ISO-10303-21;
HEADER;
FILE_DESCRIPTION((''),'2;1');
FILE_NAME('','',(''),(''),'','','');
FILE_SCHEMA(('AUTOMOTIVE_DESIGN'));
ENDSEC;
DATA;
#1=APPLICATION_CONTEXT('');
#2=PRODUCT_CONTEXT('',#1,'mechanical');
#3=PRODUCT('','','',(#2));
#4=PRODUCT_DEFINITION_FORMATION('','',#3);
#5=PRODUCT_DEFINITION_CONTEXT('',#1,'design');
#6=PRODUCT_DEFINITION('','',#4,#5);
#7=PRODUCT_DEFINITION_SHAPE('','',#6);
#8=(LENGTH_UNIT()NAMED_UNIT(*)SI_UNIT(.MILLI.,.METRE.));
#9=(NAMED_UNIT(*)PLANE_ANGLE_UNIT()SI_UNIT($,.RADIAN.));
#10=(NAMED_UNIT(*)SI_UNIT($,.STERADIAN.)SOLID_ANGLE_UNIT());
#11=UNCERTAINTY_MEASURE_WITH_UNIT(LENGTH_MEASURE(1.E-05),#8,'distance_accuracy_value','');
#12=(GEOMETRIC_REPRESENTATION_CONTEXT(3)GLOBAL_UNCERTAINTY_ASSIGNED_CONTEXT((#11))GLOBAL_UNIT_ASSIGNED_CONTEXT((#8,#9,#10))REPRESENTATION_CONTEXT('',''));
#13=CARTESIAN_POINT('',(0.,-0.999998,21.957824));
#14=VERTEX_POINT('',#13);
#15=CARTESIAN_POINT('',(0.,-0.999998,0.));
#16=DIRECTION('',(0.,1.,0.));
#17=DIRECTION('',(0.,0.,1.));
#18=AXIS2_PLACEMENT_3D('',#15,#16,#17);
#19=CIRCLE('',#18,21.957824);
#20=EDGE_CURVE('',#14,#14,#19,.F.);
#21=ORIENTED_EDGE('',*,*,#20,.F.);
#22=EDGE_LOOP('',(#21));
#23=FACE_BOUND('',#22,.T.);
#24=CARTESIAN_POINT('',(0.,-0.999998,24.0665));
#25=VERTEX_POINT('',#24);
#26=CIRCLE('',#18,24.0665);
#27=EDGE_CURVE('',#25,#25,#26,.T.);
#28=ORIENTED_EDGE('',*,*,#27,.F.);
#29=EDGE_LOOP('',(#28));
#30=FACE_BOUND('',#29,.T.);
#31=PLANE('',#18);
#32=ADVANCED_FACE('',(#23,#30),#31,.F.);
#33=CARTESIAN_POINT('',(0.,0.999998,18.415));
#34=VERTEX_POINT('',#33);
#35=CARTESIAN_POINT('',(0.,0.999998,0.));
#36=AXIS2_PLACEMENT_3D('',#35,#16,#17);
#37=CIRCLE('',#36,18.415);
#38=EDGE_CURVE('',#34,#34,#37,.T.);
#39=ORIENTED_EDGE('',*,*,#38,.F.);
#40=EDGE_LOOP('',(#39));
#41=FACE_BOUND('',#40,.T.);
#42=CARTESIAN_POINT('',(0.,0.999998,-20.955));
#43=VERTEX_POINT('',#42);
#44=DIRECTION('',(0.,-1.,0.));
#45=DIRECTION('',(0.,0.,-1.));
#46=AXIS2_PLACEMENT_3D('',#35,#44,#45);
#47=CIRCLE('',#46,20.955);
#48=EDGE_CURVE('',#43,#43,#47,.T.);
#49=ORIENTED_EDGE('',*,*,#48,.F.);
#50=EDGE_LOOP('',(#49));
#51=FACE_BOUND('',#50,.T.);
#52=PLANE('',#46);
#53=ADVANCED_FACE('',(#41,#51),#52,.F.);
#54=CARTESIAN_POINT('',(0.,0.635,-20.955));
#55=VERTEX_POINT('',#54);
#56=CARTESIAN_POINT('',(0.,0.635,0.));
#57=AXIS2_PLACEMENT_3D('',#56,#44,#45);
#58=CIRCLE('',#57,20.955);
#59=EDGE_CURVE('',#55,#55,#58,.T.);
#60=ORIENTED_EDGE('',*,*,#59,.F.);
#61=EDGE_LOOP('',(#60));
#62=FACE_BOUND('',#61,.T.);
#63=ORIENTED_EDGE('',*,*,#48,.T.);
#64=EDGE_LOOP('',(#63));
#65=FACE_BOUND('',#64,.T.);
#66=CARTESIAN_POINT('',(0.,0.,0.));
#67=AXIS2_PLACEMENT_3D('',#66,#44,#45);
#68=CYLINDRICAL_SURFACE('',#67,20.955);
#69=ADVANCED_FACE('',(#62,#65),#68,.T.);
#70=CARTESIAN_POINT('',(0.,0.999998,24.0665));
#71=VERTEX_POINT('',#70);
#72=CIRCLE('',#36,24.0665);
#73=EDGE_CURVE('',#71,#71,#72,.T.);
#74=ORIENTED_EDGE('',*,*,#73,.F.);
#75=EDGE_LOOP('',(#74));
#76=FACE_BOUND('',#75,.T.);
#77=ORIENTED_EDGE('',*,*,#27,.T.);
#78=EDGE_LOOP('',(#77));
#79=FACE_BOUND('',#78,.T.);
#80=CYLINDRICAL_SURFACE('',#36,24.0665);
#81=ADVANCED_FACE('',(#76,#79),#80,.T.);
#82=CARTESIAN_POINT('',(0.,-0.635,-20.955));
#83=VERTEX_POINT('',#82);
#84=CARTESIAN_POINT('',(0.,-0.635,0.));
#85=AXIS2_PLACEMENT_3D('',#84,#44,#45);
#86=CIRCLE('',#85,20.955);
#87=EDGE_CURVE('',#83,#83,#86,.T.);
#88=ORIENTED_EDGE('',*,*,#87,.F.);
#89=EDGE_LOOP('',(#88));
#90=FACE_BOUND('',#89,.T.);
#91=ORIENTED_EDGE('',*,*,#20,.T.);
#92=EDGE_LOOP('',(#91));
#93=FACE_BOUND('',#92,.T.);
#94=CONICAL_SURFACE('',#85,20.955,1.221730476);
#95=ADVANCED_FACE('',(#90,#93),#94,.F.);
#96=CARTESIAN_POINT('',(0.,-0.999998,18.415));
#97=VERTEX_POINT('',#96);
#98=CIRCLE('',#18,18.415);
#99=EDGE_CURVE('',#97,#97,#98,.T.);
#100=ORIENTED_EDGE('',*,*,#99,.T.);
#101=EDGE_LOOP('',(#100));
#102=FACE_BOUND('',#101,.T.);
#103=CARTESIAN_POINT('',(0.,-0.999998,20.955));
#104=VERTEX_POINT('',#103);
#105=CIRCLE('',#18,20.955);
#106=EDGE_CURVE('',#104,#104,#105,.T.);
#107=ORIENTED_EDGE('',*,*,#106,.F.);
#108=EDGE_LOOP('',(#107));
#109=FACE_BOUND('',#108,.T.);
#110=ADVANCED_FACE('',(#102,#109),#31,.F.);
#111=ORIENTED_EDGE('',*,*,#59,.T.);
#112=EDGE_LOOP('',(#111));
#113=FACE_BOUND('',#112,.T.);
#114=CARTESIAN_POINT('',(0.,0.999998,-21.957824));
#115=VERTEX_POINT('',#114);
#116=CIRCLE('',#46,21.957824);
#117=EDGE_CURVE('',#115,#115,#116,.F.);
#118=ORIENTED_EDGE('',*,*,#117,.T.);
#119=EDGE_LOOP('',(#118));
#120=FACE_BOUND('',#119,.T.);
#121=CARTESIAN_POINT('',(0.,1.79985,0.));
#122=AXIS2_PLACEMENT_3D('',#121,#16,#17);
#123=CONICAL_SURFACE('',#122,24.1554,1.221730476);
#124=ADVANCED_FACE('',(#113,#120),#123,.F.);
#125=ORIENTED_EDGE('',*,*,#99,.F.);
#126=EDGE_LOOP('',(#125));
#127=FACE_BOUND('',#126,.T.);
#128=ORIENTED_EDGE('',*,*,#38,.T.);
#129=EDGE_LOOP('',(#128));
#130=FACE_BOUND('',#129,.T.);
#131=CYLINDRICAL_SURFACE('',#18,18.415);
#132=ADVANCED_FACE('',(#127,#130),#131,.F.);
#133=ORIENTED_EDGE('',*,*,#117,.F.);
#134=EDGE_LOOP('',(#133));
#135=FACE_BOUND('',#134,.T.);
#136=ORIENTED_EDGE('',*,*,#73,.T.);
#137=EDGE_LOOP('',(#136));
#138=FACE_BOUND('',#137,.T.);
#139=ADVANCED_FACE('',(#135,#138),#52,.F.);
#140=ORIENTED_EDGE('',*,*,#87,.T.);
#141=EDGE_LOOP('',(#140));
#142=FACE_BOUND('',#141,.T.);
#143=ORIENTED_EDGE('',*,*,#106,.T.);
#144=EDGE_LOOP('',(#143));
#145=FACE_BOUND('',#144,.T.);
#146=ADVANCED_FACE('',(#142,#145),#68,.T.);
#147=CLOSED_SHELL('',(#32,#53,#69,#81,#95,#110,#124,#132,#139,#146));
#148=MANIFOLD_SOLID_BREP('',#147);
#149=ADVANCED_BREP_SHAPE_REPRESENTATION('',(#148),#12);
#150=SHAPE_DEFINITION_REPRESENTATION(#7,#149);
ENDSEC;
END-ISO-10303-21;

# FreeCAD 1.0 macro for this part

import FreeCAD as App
import Part
import Sketcher

V = App.Vector
Q = App.Units.Quantity


def add_polygon(sketch, points):
    """Adds a closed chain of lines whose ends are joined by coincident constraints."""
    first, n = sketch.GeometryCount, len(points)
    for a, b in zip(points, points[1:] + points[:1]):
        sketch.addGeometry(Part.LineSegment(App.Vector(*a, 0), App.Vector(*b, 0)), False)
    for i in range(n):
        sketch.addConstraint(Sketcher.Constraint("Coincident", first + i, 2, first + (i + 1) % n, 1))

doc = App.newDocument("Part")
params = doc.addObject("Spreadsheet::Sheet", "Params")
for row, (alias, value) in enumerate([
    ("revolution_angle", "360 deg"),
    ("sketch2_width", "0.126 in"),
    ("groove_angle", "360 deg"),
    ("sketch3_diameter", "1.45 in"),
], start=1):
    params.set(f"A{row}", alias)
    params.set(f"B{row}", "=" + value)
    params.setAlias(f"B{row}", alias)

body = doc.addObject("PartDesign::Body", "Body")

# Sketch on XY plane
sketch1 = body.newObject("Sketcher::SketchObject", "Sketch")
sketch1.AttachmentSupport = (doc.getObject("XY_Plane"), [""])
sketch1.MapMode = "FlatFace"
add_polygon(sketch1, [(0, 1), (0, -1), (24.1, -1), (24.1, 1)])  # lines 0-3
sketch1.addConstraint(Sketcher.Constraint("Vertical", 0))
sketch1.addConstraint(Sketcher.Constraint("Horizontal", 1))
sketch1.addConstraint(Sketcher.Constraint("Vertical", 2))
sketch1.addConstraint(Sketcher.Constraint("Horizontal", 3))
sketch1.addConstraint(Sketcher.Constraint("Symmetric", 0, 2, 3, 2, -1, 1))
sketch1.addConstraint(Sketcher.Constraint("DistanceX", 1, 1, 1, 2, Q("0.9475 in")))
sketch1.addConstraint(Sketcher.Constraint("DistanceY", 0, 2, -1, 1, 0.999998))
revolution = body.newObject("PartDesign::Revolution", "Revolution")
revolution.Profile = sketch1
revolution.ReferenceAxis = (sketch1, ["V_Axis"])
revolution.setExpression("Angle", "Params.revolution_angle")

# Sketch on XY plane
sketch2 = body.newObject("Sketcher::SketchObject", "Sketch001")
sketch2.AttachmentSupport = (doc.getObject("XY_Plane"), [""])
sketch2.MapMode = "FlatFace"
add_polygon(sketch2, [(-21, 0.6), (-21, 1.8), (-24.2, 1.8)])  # lines 0-2
add_polygon(sketch2, [(-21, -0.6), (-24.2, -1.8), (-21, -1.8)])  # lines 3-5
sketch2.addConstraint(Sketcher.Constraint("Vertical", 0))
sketch2.addConstraint(Sketcher.Constraint("Horizontal", 1))
sketch2.addConstraint(Sketcher.Constraint("Horizontal", 4))
sketch2.addConstraint(Sketcher.Constraint("Vertical", 5))
sketch2.addConstraint(Sketcher.Constraint("Symmetric", 1, 2, 3, 2, -1))
sketch2.addConstraint(Sketcher.Constraint("Symmetric", 2, 2, 5, 2, -1))
sketch2.addConstraint(Sketcher.Constraint("Angle", 2, Q("-20 deg")))
sketch2.addConstraint(Sketcher.Constraint("DistanceX", 1, 2, 1, 1, Q("0.126 in")))
sketch2.addConstraint(Sketcher.Constraint("DistanceY", 5, 2, 2, 2, Q("0.05 in")))
sketch2.addConstraint(Sketcher.Constraint("DistanceX", 0, 2, -1, 1, Q("0.825 in")))
sketch2.setExpression("Constraints[13]", "Params.sketch2_width")
groove = body.newObject("PartDesign::Groove", "Groove")
groove.Profile = sketch2
groove.ReferenceAxis = (sketch2, ["V_Axis"])
groove.setExpression("Angle", "Params.groove_angle")

# Sketch on XZ plane
sketch3 = body.newObject("Sketcher::SketchObject", "Sketch002")
sketch3.AttachmentSupport = (doc.getObject("XZ_Plane"), [""])
sketch3.MapMode = "FlatFace"
sketch3.AttachmentOffset = App.Placement(V(0, 0, -0.999998), App.Rotation())
sketch3.addGeometry(Part.Circle(V(0, 0, 0), V(0, 0, 1), 18), False)
sketch3.addConstraint(Sketcher.Constraint("Coincident", 0, 3, -1, 1))
sketch3.addConstraint(Sketcher.Constraint("Diameter", 0, Q("1.45 in")))
sketch3.setExpression("Constraints[1]", "Params.sketch3_diameter")
pocket1 = body.newObject("PartDesign::Pocket", "Pocket")
pocket1.Profile = sketch3
pocket1.Type = "ThroughAll"
pocket1.Reversed = True

doc.recompute()
